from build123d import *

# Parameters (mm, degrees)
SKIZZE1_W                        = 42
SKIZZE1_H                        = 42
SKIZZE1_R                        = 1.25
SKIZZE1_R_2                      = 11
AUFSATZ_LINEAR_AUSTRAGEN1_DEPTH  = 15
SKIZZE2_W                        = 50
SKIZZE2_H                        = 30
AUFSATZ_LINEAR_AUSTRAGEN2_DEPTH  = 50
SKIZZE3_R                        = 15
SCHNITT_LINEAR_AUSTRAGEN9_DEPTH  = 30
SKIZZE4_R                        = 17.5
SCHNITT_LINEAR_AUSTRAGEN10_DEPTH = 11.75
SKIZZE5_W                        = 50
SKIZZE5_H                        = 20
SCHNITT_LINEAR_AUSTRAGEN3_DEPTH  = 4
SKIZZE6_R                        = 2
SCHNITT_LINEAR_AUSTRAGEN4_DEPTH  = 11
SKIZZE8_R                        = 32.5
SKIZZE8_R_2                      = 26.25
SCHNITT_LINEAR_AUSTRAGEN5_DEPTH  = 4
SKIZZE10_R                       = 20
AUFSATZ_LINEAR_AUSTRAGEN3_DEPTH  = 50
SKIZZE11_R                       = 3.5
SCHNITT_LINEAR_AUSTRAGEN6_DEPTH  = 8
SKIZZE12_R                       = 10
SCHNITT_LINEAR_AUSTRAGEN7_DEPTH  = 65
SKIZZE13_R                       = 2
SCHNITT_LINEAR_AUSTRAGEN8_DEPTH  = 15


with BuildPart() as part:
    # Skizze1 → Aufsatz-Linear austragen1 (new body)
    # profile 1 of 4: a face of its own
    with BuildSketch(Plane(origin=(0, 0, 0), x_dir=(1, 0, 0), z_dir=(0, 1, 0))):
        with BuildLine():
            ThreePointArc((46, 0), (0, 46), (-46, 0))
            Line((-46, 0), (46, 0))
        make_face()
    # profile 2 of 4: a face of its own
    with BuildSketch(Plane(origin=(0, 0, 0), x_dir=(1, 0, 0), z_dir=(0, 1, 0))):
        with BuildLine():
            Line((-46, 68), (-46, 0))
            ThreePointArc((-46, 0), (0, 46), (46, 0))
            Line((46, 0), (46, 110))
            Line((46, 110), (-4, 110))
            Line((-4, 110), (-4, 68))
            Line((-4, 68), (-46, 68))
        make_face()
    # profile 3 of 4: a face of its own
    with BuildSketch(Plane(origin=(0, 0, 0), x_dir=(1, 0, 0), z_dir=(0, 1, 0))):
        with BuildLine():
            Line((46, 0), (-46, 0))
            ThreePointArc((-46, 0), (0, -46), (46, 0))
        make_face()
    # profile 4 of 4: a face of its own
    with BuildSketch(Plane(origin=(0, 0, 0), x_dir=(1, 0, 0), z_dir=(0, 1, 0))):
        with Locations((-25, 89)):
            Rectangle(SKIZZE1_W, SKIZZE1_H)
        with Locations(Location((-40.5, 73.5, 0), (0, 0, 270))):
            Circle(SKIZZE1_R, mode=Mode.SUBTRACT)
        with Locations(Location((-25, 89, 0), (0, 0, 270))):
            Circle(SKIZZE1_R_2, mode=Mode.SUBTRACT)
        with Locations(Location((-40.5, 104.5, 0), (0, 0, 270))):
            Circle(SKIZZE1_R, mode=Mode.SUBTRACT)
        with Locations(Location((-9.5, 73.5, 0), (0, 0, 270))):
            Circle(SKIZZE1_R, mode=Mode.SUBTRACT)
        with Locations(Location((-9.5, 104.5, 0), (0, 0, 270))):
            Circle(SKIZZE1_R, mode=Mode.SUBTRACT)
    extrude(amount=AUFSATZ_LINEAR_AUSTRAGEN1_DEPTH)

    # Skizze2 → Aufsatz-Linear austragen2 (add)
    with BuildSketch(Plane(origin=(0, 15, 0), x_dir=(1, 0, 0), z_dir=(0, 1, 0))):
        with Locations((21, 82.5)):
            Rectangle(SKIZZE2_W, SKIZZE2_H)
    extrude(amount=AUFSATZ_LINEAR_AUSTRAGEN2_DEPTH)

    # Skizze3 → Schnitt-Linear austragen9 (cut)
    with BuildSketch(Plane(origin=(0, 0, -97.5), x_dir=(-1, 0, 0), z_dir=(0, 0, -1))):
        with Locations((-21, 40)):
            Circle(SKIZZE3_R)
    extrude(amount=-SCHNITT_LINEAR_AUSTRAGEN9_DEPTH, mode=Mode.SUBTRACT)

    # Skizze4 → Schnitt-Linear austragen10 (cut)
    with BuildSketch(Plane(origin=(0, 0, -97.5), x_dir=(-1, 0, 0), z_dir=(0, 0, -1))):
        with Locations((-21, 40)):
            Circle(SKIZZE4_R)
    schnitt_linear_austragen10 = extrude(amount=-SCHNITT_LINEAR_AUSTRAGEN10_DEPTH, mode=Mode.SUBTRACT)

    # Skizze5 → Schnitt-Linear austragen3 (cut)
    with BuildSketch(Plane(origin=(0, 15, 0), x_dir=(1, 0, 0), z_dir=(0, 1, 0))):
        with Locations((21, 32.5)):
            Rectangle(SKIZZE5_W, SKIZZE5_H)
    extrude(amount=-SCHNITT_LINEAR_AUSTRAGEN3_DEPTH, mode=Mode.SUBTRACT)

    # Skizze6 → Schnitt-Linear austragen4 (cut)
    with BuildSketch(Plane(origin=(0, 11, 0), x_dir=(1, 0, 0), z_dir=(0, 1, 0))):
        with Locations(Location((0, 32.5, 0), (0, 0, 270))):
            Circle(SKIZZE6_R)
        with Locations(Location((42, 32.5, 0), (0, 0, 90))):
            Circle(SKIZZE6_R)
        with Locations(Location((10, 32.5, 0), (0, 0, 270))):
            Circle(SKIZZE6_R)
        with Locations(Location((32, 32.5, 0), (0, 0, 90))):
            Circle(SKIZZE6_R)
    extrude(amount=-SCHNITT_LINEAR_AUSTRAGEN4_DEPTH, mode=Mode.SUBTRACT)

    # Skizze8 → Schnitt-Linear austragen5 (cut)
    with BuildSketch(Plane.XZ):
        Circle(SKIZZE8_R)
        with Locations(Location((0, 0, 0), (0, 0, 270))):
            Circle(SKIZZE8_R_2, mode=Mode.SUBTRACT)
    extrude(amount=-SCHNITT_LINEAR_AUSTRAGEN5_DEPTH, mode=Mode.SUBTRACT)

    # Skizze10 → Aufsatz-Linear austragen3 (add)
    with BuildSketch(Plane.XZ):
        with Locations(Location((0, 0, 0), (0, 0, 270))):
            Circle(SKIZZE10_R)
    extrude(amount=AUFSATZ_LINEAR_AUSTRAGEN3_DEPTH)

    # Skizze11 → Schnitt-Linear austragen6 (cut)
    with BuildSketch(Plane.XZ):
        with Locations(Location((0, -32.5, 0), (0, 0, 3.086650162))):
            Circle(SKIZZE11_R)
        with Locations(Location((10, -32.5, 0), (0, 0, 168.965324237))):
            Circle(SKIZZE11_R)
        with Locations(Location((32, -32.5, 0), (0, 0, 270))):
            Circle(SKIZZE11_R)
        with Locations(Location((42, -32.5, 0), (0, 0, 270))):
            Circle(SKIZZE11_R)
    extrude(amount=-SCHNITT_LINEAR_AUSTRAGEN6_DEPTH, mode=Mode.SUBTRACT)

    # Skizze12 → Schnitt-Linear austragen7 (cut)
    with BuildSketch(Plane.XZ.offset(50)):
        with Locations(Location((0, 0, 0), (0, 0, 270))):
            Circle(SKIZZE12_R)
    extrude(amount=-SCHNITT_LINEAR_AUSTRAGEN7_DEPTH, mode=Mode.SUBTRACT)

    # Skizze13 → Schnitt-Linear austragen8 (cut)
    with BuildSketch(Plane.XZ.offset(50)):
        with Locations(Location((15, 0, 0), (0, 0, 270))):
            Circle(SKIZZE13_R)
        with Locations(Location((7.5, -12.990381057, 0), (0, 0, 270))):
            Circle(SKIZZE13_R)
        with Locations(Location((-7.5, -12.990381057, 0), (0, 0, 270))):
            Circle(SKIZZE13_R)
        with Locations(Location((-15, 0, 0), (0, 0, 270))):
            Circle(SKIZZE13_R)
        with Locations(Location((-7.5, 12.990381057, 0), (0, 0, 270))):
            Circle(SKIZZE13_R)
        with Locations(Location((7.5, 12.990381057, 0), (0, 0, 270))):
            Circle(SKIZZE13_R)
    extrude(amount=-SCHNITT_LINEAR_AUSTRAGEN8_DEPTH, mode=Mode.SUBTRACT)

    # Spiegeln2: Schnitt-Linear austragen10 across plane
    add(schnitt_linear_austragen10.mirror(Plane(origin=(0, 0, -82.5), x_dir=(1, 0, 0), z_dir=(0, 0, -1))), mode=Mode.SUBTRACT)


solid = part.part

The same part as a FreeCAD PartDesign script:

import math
import FreeCAD as App
import Part
import Sketcher
Q = App.Units.Quantity

doc = App.newDocument("Part")
body = doc.addObject("PartDesign::Body", "Body")

sketch1 = body.newObject("Sketcher::SketchObject", "Sketch")
sketch1.AttachmentSupport = (doc.getObject("XZ_Plane"), [""])
sketch1.MapMode = "FlatFace"
sketch1.addGeometry([
    Part.ArcOfCircle(Part.Circle(App.Vector(0, 0, 0), App.Vector(0, 0, 1), 46), math.radians(0), math.radians(180)),
    Part.LineSegment(App.Vector(46, 0, 0), App.Vector(46, -110, 0)),
    Part.LineSegment(App.Vector(46, -110, 0), App.Vector(-46, -110, 0)),
    Part.LineSegment(App.Vector(-46, -110, 0), App.Vector(-46, 0, 0)),
    Part.Circle(App.Vector(-9.5, -104.5, 0), App.Vector(0, 0, 1), 1.2),
    Part.Circle(App.Vector(-25, -89, 0), App.Vector(0, 0, 1), 11),
    Part.Circle(App.Vector(-40.5, -73.5, 0), App.Vector(0, 0, 1), 1.2),
    Part.Circle(App.Vector(-9.5, -73.5, 0), App.Vector(0, 0, 1), 1.2),
    Part.Circle(App.Vector(-40.5, -104.5, 0), App.Vector(0, 0, 1), 1.2),
], False)
sketch1.addConstraint([
    Sketcher.Constraint("Tangent", 0, 1, 1, 1),
    Sketcher.Constraint("Coincident", 1, 2, 2, 1),
    Sketcher.Constraint("Coincident", 2, 2, 3, 1),
    Sketcher.Constraint("Tangent", 3, 2, 0, 2),
    Sketcher.Constraint("Vertical", 1),
    Sketcher.Constraint("Horizontal", 2),
    Sketcher.Constraint("Vertical", 3),
    Sketcher.Constraint("Coincident", 0, 3, -1, 1),
    Sketcher.Constraint("Equal", 4, 6),
    Sketcher.Constraint("Equal", 6, 7),
    Sketcher.Constraint("Equal", 7, 8),
    Sketcher.Constraint("Horizontal", 6, 3, 7, 3),
    Sketcher.Constraint("Horizontal", 4, 3, 8, 3),
    Sketcher.Constraint("Vertical", 4, 3, 7, 3),
    Sketcher.Constraint("Vertical", 6, 3, 8, 3),
    Sketcher.Constraint("Diameter", 5, Q("22 mm")),
    Sketcher.Constraint("Radius", 0, Q("46 mm")),
    Sketcher.Constraint("Diameter", 4, Q("2.5 mm")),
    Sketcher.Constraint("DistanceY", 1, 2, 1, 1, Q("110 mm")),
    Sketcher.Constraint("DistanceX", 5, 3, -1, 1, Q("25 mm")),
    Sketcher.Constraint("DistanceY", 5, 3, -1, 1, Q("89 mm")),
    Sketcher.Constraint("DistanceX", 6, 3, 4, 3, Q("31 mm")),
    Sketcher.Constraint("DistanceY", 4, 3, 6, 3, Q("31 mm")),
    Sketcher.Constraint("DistanceX", 4, 3, -1, 1, Q("9.5 mm")),
    Sketcher.Constraint("DistanceY", 4, 3, -1, 1, Q("104.5 mm")),
])
pad1 = body.newObject("PartDesign::Pad", "Pad")
pad1.Profile = sketch1
pad1.Length = 15
pad1.Reversed = True

sketch2 = body.newObject("Sketcher::SketchObject", "Sketch001")
sketch2.AttachmentSupport = (doc.getObject("XZ_Plane"), [""])
sketch2.MapMode = "FlatFace"
sketch2.AttachmentOffset = App.Placement(App.Vector(0, 0, -15), App.Rotation())
sketch2.addGeometry([
    Part.LineSegment(App.Vector(-4, -98, 0), App.Vector(-4, -68, 0)),
    Part.LineSegment(App.Vector(-4, -68, 0), App.Vector(46, -68, 0)),
    Part.LineSegment(App.Vector(46, -68, 0), App.Vector(46, -98, 0)),
    Part.LineSegment(App.Vector(46, -98, 0), App.Vector(-4, -98, 0)),
], False)
sketch2.addConstraint([
    Sketcher.Constraint("Coincident", 0, 2, 1, 1),
    Sketcher.Constraint("Coincident", 1, 2, 2, 1),
    Sketcher.Constraint("Coincident", 2, 2, 3, 1),
    Sketcher.Constraint("Coincident", 3, 2, 0, 1),
    Sketcher.Constraint("Vertical", 0),
    Sketcher.Constraint("Horizontal", 1),
    Sketcher.Constraint("Vertical", 2),
    Sketcher.Constraint("Horizontal", 3),
    Sketcher.Constraint("DistanceX", 1, 1, 1, 2, Q("50 mm")),
    Sketcher.Constraint("DistanceY", 0, 1, 0, 2, Q("30 mm")),
    Sketcher.Constraint("DistanceX", 0, 2, -1, 1, Q("4 mm")),
    Sketcher.Constraint("DistanceY", 0, 2, -1, 1, Q("67.5 mm")),
])
pad2 = body.newObject("PartDesign::Pad", "Pad001")
pad2.Profile = sketch2
pad2.Length = 50
pad2.Reversed = True

sketch3 = body.newObject("Sketcher::SketchObject", "Sketch002")
sketch3.AttachmentSupport = (doc.getObject("XY_Plane"), [""])
sketch3.MapMode = "FlatFace"
sketch3.AttachmentOffset = App.Placement(App.Vector(0, 0, -97.5), App.Rotation())
sketch3.addGeometry(Part.Circle(App.Vector(21, 40, 0), App.Vector(0, 0, 1), 15), False)
sketch3.addConstraint([
    Sketcher.Constraint("Diameter", 0, Q("30 mm")),
    Sketcher.Constraint("DistanceX", -1, 1, 0, 3, Q("21 mm")),
    Sketcher.Constraint("DistanceY", -1, 1, 0, 3, Q("40 mm")),
])
pocket1 = body.newObject("PartDesign::Pocket", "Pocket")
pocket1.Profile = sketch3
pocket1.Length = 30
pocket1.Reversed = True

sketch4 = body.newObject("Sketcher::SketchObject", "Sketch003")
sketch4.AttachmentSupport = (doc.getObject("XY_Plane"), [""])
sketch4.MapMode = "FlatFace"
sketch4.AttachmentOffset = App.Placement(App.Vector(0, 0, -97.5), App.Rotation())
sketch4.addGeometry(Part.Circle(App.Vector(21, 40, 0), App.Vector(0, 0, 1), 18), False)
sketch4.addConstraint([
    Sketcher.Constraint("Diameter", 0, Q("35 mm")),
    Sketcher.Constraint("DistanceX", -1, 1, 0, 3, Q("21 mm")),
    Sketcher.Constraint("DistanceY", -1, 1, 0, 3, Q("40 mm")),
])
pocket2 = body.newObject("PartDesign::Pocket", "Pocket001")
pocket2.Profile = sketch4
pocket2.Length = 11.75
pocket2.Reversed = True

sketch5 = body.newObject("Sketcher::SketchObject", "Sketch004")
sketch5.AttachmentSupport = (doc.getObject("XZ_Plane"), [""])
sketch5.MapMode = "FlatFace"
sketch5.AttachmentOffset = App.Placement(App.Vector(0, 0, -15), App.Rotation())
sketch5.addGeometry([
    Part.LineSegment(App.Vector(-4, -42, 0), App.Vector(-4, -22, 0)),
    Part.LineSegment(App.Vector(-4, -22, 0), App.Vector(46, -22, 0)),
    Part.LineSegment(App.Vector(46, -22, 0), App.Vector(46, -42, 0)),
    Part.LineSegment(App.Vector(46, -42, 0), App.Vector(-4, -42, 0)),
], False)
sketch5.addConstraint([
    Sketcher.Constraint("Coincident", 0, 2, 1, 1),
    Sketcher.Constraint("Coincident", 1, 2, 2, 1),
    Sketcher.Constraint("Coincident", 2, 2, 3, 1),
    Sketcher.Constraint("Coincident", 3, 2, 0, 1),
    Sketcher.Constraint("Vertical", 0),
    Sketcher.Constraint("Horizontal", 1),
    Sketcher.Constraint("Vertical", 2),
    Sketcher.Constraint("Horizontal", 3),
    Sketcher.Constraint("DistanceX", 1, 1, 1, 2, Q("50 mm")),
    Sketcher.Constraint("DistanceY", 0, 1, 0, 2, Q("20 mm")),
    Sketcher.Constraint("DistanceX", 0, 2, -1, 1, Q("4 mm")),
    Sketcher.Constraint("DistanceY", 0, 2, -1, 1, Q("22.5 mm")),
])
pocket3 = body.newObject("PartDesign::Pocket", "Pocket002")
pocket3.Profile = sketch5
pocket3.Length = 4
pocket3.Reversed = True

sketch6 = body.newObject("Sketcher::SketchObject", "Sketch005")
sketch6.AttachmentSupport = (doc.getObject("XZ_Plane"), [""])
sketch6.MapMode = "FlatFace"
sketch6.AttachmentOffset = App.Placement(App.Vector(0, 0, -11), App.Rotation())
sketch6.addGeometry([
    Part.Circle(App.Vector(0, -32.5, 0), App.Vector(0, 0, 1), 2),
    Part.Circle(App.Vector(42, -32.5, 0), App.Vector(0, 0, 1), 2),
    Part.Circle(App.Vector(10, -32.5, 0), App.Vector(0, 0, 1), 2),
    Part.Circle(App.Vector(32, -32.5, 0), App.Vector(0, 0, 1), 2),
], False)
sketch6.addConstraint([
    Sketcher.Constraint("Equal", 0, 1),
    Sketcher.Constraint("Equal", 1, 2),
    Sketcher.Constraint("Equal", 2, 3),
    Sketcher.Constraint("PointOnObject", 0, 3, -2),
    Sketcher.Constraint("Horizontal", 0, 3, 1, 3),
    Sketcher.Constraint("Horizontal", 1, 3, 2, 3),
    Sketcher.Constraint("Horizontal", 2, 3, 3, 3),
    Sketcher.Constraint("Diameter", 0, Q("4 mm")),
    Sketcher.Constraint("DistanceX", -1, 1, 1, 3, Q("42 mm")),
    Sketcher.Constraint("DistanceX", -1, 1, 2, 3, Q("10 mm")),
    Sketcher.Constraint("DistanceX", -1, 1, 3, 3, Q("32 mm")),
    Sketcher.Constraint("DistanceY", 0, 3, -1, 1, Q("32.5 mm")),
])
pocket4 = body.newObject("PartDesign::Pocket", "Pocket003")
pocket4.Profile = sketch6
pocket4.Length = 11
pocket4.Reversed = True

sketch7 = body.newObject("Sketcher::SketchObject", "Sketch006")
sketch7.AttachmentSupport = (doc.getObject("XZ_Plane"), [""])
sketch7.MapMode = "FlatFace"
sketch7.addGeometry([
    Part.Circle(App.Vector(0, 0, 0), App.Vector(0, 0, 1), 32),
    Part.Circle(App.Vector(0, 0, 0), App.Vector(0, 0, 1), 26),
], False)
sketch7.addConstraint([
    Sketcher.Constraint("Coincident", 0, 3, -1, 1),
    Sketcher.Constraint("Coincident", 1, 3, -1, 1),
    Sketcher.Constraint("Diameter", 0, Q("65 mm")),
    Sketcher.Constraint("Diameter", 1, Q("52.5 mm")),
])
pocket5 = body.newObject("PartDesign::Pocket", "Pocket004")
pocket5.Profile = sketch7
pocket5.Length = 4

sketch8 = body.newObject("Sketcher::SketchObject", "Sketch007")
sketch8.AttachmentSupport = (doc.getObject("XZ_Plane"), [""])
sketch8.MapMode = "FlatFace"
sketch8.addGeometry(Part.Circle(App.Vector(0, 0, 0), App.Vector(0, 0, 1), 20), False)
sketch8.addConstraint([
    Sketcher.Constraint("Coincident", 0, 3, -1, 1),
    Sketcher.Constraint("Diameter", 0, Q("40 mm")),
])
pad3 = body.newObject("PartDesign::Pad", "Pad002")
pad3.Profile = sketch8
pad3.Length = 50

sketch9 = body.newObject("Sketcher::SketchObject", "Sketch008")
sketch9.AttachmentSupport = (doc.getObject("XZ_Plane"), [""])
sketch9.MapMode = "FlatFace"
sketch9.addGeometry([
    Part.Circle(App.Vector(0, -32.5, 0), App.Vector(0, 0, 1), 3.5),
    Part.Circle(App.Vector(10, -32.5, 0), App.Vector(0, 0, 1), 3.5),
    Part.Circle(App.Vector(32, -32.5, 0), App.Vector(0, 0, 1), 3.5),
    Part.Circle(App.Vector(42, -32.5, 0), App.Vector(0, 0, 1), 3.5),
], False)
sketch9.addConstraint([
    Sketcher.Constraint("Equal", 0, 1),
    Sketcher.Constraint("Equal", 1, 2),
    Sketcher.Constraint("Equal", 2, 3),
    Sketcher.Constraint("PointOnObject", 0, 3, -2),
    Sketcher.Constraint("Horizontal", 0, 3, 1, 3),
    Sketcher.Constraint("Horizontal", 1, 3, 2, 3),
    Sketcher.Constraint("Horizontal", 2, 3, 3, 3),
    Sketcher.Constraint("Diameter", 0, Q("7 mm")),
    Sketcher.Constraint("DistanceX", -1, 1, 1, 3, Q("10 mm")),
    Sketcher.Constraint("DistanceX", -1, 1, 2, 3, Q("32 mm")),
    Sketcher.Constraint("DistanceX", -1, 1, 3, 3, Q("42 mm")),
    Sketcher.Constraint("DistanceY", 0, 3, -1, 1, Q("32.5 mm")),
])
pocket6 = body.newObject("PartDesign::Pocket", "Pocket005")
pocket6.Profile = sketch9
pocket6.Length = 8

sketch10 = body.newObject("Sketcher::SketchObject", "Sketch009")
sketch10.AttachmentSupport = (doc.getObject("XZ_Plane"), [""])
sketch10.MapMode = "FlatFace"
sketch10.AttachmentOffset = App.Placement(App.Vector(0, 0, 50), App.Rotation())
sketch10.addGeometry(Part.Circle(App.Vector(0, 0, 0), App.Vector(0, 0, 1), 10), False)
sketch10.addConstraint([
    Sketcher.Constraint("Coincident", 0, 3, -1, 1),
    Sketcher.Constraint("Diameter", 0, Q("20 mm")),
])
pocket7 = body.newObject("PartDesign::Pocket", "Pocket006")
pocket7.Profile = sketch10
pocket7.Length = 65

sketch11 = body.newObject("Sketcher::SketchObject", "Sketch010")
sketch11.AttachmentSupport = (doc.getObject("XZ_Plane"), [""])
sketch11.MapMode = "FlatFace"
sketch11.AttachmentOffset = App.Placement(App.Vector(0, 0, 50), App.Rotation())
sketch11.addGeometry([
    Part.Circle(App.Vector(15, 0, 0), App.Vector(0, 0, 1), 2),
    Part.Circle(App.Vector(7.5, -13, 0), App.Vector(0, 0, 1), 2),
    Part.Circle(App.Vector(-7.5, -13, 0), App.Vector(0, 0, 1), 2),
    Part.Circle(App.Vector(-15, 0, 0), App.Vector(0, 0, 1), 2),
    Part.Circle(App.Vector(-7.5, 13, 0), App.Vector(0, 0, 1), 2),
    Part.Circle(App.Vector(7.5, 13, 0), App.Vector(0, 0, 1), 2),
], False)
sketch11.addConstraint([
    Sketcher.Constraint("Equal", 0, 1),
    Sketcher.Constraint("Equal", 1, 2),
    Sketcher.Constraint("Equal", 2, 3),
    Sketcher.Constraint("Equal", 3, 4),
    Sketcher.Constraint("Equal", 4, 5),
    Sketcher.Constraint("Symmetric", 0, 3, 3, 3, -1, 1),
    Sketcher.Constraint("Symmetric", 1, 3, 4, 3, -1, 1),
    Sketcher.Constraint("Symmetric", 2, 3, 5, 3, -1, 1),
    Sketcher.Constraint("Symmetric", 1, 3, 2, 3, -2),
    Sketcher.Constraint("PointOnObject", 0, 3, -1),
    Sketcher.Constraint("Diameter", 0, Q("4 mm")),
    Sketcher.Constraint("DistanceX", -1, 1, 0, 3, Q("15 mm")),
    Sketcher.Constraint("DistanceX", 2, 3, 1, 3, Q("15 mm")),
    Sketcher.Constraint("DistanceY", 1, 3, -1, 1, Q("12.990381 mm")),
])
pocket8 = body.newObject("PartDesign::Pocket", "Pocket007")
pocket8.Profile = sketch11
pocket8.Length = 15
doc.recompute()

datumplane = body.newObject("PartDesign::Plane", "DatumPlane")
datumplane.AttachmentSupport = (doc.getObject("XY_Plane"), [""])
datumplane.MapMode = "FlatFace"
datumplane.AttachmentOffset = App.Placement(App.Vector(0, 0, -82.5), App.Rotation())
mirrored = body.newObject("PartDesign::Mirrored", "Mirrored")
mirrored.Originals = [pocket2]
mirrored.MirrorPlane = (datumplane, [""])
body.Tip = mirrored

doc.recompute()
